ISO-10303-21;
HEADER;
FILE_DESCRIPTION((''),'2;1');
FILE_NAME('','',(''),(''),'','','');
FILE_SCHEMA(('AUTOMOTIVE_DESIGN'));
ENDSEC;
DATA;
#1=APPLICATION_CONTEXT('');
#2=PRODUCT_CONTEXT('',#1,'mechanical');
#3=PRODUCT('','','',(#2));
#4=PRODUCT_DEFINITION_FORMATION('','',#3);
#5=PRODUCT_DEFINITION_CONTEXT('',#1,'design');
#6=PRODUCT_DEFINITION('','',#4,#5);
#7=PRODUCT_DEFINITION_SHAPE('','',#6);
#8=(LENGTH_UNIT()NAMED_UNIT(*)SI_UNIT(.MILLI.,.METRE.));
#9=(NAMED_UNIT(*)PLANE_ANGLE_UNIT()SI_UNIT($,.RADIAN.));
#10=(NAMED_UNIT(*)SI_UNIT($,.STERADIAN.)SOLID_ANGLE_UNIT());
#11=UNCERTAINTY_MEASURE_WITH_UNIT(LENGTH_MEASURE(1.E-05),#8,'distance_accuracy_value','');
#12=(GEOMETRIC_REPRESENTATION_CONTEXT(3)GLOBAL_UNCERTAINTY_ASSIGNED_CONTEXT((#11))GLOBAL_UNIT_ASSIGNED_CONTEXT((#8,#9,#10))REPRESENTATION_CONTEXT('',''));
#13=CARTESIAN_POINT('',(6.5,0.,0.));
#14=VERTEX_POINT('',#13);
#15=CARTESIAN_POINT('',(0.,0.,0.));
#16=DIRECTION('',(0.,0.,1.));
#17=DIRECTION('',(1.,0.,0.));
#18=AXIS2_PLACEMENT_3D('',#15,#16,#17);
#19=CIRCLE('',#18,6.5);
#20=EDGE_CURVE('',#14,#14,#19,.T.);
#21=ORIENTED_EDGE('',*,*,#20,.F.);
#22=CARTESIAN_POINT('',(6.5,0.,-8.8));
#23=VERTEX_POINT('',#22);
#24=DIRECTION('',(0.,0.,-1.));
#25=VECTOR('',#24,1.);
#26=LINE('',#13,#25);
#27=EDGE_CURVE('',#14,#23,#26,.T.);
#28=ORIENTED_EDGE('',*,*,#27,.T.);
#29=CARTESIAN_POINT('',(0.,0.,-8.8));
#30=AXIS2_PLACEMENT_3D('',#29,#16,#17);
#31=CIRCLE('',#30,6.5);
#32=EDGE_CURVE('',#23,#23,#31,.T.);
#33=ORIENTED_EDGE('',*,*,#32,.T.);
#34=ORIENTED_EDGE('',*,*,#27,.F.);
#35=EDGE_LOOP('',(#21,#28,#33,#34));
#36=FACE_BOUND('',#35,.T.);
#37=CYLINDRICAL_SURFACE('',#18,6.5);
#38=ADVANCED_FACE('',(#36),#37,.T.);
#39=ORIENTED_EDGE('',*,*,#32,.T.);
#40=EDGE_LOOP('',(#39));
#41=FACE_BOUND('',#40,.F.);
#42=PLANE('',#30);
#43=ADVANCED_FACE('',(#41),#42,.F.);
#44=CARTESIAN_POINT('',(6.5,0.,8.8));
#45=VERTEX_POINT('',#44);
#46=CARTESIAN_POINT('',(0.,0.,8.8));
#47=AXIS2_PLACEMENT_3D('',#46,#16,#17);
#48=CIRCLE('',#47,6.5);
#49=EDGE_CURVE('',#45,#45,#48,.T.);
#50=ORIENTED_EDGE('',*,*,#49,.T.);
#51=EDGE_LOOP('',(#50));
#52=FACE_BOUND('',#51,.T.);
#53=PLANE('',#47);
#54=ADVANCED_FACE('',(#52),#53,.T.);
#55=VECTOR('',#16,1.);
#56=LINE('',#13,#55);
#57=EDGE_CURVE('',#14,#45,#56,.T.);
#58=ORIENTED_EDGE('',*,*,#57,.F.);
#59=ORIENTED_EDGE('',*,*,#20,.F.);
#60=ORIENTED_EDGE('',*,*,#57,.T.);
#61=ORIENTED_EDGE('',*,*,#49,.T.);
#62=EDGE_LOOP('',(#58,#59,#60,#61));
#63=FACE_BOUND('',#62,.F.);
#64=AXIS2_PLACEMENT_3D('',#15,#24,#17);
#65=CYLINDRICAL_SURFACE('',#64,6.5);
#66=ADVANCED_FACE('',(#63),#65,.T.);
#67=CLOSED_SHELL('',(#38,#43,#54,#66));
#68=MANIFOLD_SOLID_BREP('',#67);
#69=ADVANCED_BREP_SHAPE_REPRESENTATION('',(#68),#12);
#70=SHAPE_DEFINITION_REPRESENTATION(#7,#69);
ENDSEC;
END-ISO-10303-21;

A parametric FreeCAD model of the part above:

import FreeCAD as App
import Part
import Sketcher
from FreeCAD import Vector

doc = App.newDocument("Part")
body = doc.addObject("PartDesign::Body", "Body")

# Sketch on XY plane
sketch1 = body.newObject("Sketcher::SketchObject", "Sketch")
sketch1.AttachmentSupport = (doc.getObject("XY_Plane"), [""])
sketch1.MapMode = "FlatFace"
sketch1.addGeometry(Part.Circle(Vector(0, 0, 0), Vector(0, 0, 1), 6.5), False)
sketch1.addConstraint(Sketcher.Constraint("Coincident", 0, 3, -1, 1))
sketch1.addConstraint(Sketcher.Constraint("Diameter", 0, 13.0))
pad1 = body.newObject("PartDesign::Pad", "Pad")
pad1.Profile = sketch1
pad1.Length = 17.6
pad1.Midplane = True

doc.recompute()
